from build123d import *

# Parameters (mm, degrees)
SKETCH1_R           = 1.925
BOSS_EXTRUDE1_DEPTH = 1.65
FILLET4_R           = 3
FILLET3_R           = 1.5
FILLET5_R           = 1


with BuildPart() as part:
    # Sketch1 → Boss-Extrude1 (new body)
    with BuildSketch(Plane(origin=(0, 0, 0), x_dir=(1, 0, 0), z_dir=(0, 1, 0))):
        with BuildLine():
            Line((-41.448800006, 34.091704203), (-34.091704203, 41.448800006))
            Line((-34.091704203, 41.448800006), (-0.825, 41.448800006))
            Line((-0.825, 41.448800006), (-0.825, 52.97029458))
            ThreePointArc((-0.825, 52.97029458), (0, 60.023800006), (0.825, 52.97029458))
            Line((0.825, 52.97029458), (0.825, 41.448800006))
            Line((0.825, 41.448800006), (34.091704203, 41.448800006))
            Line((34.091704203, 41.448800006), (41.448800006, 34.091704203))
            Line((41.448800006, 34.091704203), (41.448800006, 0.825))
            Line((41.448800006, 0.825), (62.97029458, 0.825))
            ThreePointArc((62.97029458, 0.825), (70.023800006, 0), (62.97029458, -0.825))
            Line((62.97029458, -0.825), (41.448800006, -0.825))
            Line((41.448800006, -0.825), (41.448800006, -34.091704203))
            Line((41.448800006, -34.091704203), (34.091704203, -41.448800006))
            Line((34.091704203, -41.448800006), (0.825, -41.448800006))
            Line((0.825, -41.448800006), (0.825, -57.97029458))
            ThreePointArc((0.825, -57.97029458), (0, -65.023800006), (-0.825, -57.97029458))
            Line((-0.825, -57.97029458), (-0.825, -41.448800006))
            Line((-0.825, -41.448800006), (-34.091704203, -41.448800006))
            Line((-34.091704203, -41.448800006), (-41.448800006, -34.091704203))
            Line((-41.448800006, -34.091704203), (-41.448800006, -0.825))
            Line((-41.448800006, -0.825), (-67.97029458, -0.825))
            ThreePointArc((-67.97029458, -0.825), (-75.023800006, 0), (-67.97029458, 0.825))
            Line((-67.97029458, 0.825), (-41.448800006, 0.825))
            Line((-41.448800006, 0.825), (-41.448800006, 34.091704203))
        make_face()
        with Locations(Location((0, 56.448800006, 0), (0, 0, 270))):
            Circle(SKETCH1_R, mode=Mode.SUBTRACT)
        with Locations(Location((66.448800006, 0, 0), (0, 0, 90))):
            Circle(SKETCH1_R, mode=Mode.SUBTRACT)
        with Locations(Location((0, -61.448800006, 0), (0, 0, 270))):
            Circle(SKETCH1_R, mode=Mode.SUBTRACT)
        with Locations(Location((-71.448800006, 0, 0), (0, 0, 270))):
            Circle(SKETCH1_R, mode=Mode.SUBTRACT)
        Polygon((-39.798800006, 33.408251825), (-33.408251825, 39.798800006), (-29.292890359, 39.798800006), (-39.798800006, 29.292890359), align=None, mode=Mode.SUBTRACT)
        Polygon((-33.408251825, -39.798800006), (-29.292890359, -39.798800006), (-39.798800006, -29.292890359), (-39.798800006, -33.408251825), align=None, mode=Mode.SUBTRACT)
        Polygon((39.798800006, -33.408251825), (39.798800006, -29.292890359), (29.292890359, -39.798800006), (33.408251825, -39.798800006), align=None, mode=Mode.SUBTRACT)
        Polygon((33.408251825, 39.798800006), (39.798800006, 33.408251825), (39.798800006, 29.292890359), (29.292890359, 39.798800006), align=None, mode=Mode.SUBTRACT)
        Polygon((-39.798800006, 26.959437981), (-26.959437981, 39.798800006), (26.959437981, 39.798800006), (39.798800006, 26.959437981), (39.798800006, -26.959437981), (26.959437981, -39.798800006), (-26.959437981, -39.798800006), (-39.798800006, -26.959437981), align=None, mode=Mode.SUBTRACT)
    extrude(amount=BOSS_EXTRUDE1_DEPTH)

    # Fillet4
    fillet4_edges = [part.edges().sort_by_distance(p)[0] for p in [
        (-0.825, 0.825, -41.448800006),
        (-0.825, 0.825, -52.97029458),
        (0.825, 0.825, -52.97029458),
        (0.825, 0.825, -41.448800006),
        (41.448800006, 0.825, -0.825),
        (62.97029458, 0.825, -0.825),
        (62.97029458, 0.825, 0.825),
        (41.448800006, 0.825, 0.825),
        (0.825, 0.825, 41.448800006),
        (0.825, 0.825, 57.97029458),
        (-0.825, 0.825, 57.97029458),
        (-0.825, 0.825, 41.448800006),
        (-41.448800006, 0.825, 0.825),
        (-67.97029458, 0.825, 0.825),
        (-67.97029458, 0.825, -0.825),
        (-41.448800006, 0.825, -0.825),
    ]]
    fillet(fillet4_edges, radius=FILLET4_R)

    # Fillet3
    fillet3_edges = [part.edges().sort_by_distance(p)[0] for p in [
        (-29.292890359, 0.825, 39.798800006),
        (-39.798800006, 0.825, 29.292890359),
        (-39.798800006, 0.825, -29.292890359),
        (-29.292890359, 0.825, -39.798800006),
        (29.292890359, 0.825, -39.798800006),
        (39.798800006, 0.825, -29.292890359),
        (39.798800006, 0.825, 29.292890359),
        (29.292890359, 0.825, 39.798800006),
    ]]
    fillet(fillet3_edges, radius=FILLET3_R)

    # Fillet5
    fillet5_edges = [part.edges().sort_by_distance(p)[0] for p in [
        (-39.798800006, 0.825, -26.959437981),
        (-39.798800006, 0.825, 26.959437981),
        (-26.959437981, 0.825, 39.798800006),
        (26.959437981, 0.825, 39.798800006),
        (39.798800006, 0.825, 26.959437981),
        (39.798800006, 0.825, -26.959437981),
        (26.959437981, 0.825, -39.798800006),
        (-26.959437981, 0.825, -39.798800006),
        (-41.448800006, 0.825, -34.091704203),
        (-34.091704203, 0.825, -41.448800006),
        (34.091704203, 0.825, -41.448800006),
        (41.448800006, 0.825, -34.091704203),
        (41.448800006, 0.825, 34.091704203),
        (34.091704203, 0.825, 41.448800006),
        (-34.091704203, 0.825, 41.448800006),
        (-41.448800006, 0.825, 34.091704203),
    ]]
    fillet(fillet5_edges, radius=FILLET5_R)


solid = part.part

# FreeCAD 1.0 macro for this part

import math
import FreeCAD as App
import Part
import Sketcher

V = App.Vector


def edges_at(feature, points):
    """Names of the edges that pass closest to the given points."""
    edges = feature.Shape.Edges
    near = lambda p: min(range(len(edges)), key=lambda i: edges[i].distToShape(Part.Vertex(*p))[0])
    return sorted({f"Edge{near(p) + 1}" for p in points})

doc = App.newDocument("Part")
body = doc.addObject("PartDesign::Body", "Body")

# Sketch on XZ plane
sketch1 = body.newObject("Sketcher::SketchObject", "Sketch")
sketch1.AttachmentSupport = (doc.getObject("XZ_Plane"), [""])
sketch1.MapMode = "FlatFace"
sketch1.addGeometry([
    Part.LineSegment(V(-34.1, -41.4, 0), V(-41.4, -34.1, 0)),  # 0
    Part.LineSegment(V(-41.4, -34.1, 0), V(-41.4, -0.8, 0)),  # 1
    Part.LineSegment(V(-41.4, -0.8, 0), V(-68, -0.8, 0)),  # 2
    Part.ArcOfCircle(Part.Circle(V(-71.4, 0, 0), V(0, 0, 1), 3.6), math.radians(13), math.radians(347)),  # 3
    Part.LineSegment(V(-68, 0.8, 0), V(-41.4, 0.8, 0)),  # 4
    Part.LineSegment(V(-41.4, 0.8, 0), V(-41.4, 34.1, 0)),  # 5
    Part.LineSegment(V(-41.4, 34.1, 0), V(-34.1, 41.4, 0)),  # 6
    Part.LineSegment(V(-34.1, 41.4, 0), V(-0.8, 41.4, 0)),  # 7
    Part.LineSegment(V(-0.8, 41.4, 0), V(-0.8, 58, 0)),  # 8
    Part.ArcOfCircle(Part.Circle(V(0, 61.4, 0), V(0, 0, 1), 3.6), math.radians(-77), math.radians(257)),  # 9
    Part.LineSegment(V(0.8, 58, 0), V(0.8, 41.4, 0)),  # 10
    Part.LineSegment(V(0.8, 41.4, 0), V(34.1, 41.4, 0)),  # 11
    Part.LineSegment(V(34.1, 41.4, 0), V(41.4, 34.1, 0)),  # 12
    Part.LineSegment(V(41.4, 34.1, 0), V(41.4, 0.8, 0)),  # 13
    Part.LineSegment(V(41.4, 0.8, 0), V(63, 0.8, 0)),  # 14
    Part.ArcOfCircle(Part.Circle(V(66.4, 0, 0), V(0, 0, 1), 3.6), math.radians(-167), math.radians(167)),  # 15
    Part.LineSegment(V(63, -0.8, 0), V(41.4, -0.8, 0)),  # 16
    Part.LineSegment(V(41.4, -0.8, 0), V(41.4, -34.1, 0)),  # 17
    Part.LineSegment(V(41.4, -34.1, 0), V(34.1, -41.4, 0)),  # 18
    Part.LineSegment(V(34.1, -41.4, 0), V(0.8, -41.4, 0)),  # 19
    Part.LineSegment(V(0.8, -41.4, 0), V(0.8, -53, 0)),  # 20
    Part.ArcOfCircle(Part.Circle(V(0, -56.4, 0), V(0, 0, 1), 3.6), math.radians(103), math.radians(437)),  # 21
    Part.LineSegment(V(-0.8, -53, 0), V(-0.8, -41.4, 0)),  # 22
    Part.LineSegment(V(-0.8, -41.4, 0), V(-34.1, -41.4, 0)),  # 23
    Part.LineSegment(V(39.8, 33.4, 0), V(33.4, 39.8, 0)),  # 24
    Part.LineSegment(V(33.4, 39.8, 0), V(29.3, 39.8, 0)),  # 25
    Part.LineSegment(V(29.3, 39.8, 0), V(39.8, 29.3, 0)),  # 26
    Part.LineSegment(V(39.8, 29.3, 0), V(39.8, 33.4, 0)),  # 27
    Part.Circle(V(0, 61.4, 0), V(0, 0, 1), 1.9),  # 28
    Part.LineSegment(V(-33.4, 39.8, 0), V(-39.8, 33.4, 0)),  # 29
    Part.LineSegment(V(-39.8, 33.4, 0), V(-39.8, 29.3, 0)),  # 30
    Part.LineSegment(V(-39.8, 29.3, 0), V(-29.3, 39.8, 0)),  # 31
    Part.LineSegment(V(-29.3, 39.8, 0), V(-33.4, 39.8, 0)),  # 32
    Part.Circle(V(66.4, 0, 0), V(0, 0, 1), 1.9),  # 33
    Part.LineSegment(V(-39.8, -27, 0), V(-27, -39.8, 0)),  # 34
    Part.LineSegment(V(-27, -39.8, 0), V(27, -39.8, 0)),  # 35
    Part.LineSegment(V(27, -39.8, 0), V(39.8, -27, 0)),  # 36
    Part.LineSegment(V(39.8, -27, 0), V(39.8, 27, 0)),  # 37
    Part.LineSegment(V(39.8, 27, 0), V(27, 39.8, 0)),  # 38
    Part.LineSegment(V(27, 39.8, 0), V(-27, 39.8, 0)),  # 39
    Part.LineSegment(V(-27, 39.8, 0), V(-39.8, 27, 0)),  # 40
    Part.LineSegment(V(-39.8, 27, 0), V(-39.8, -27, 0)),  # 41
    Part.LineSegment(V(33.4, -39.8, 0), V(39.8, -33.4, 0)),  # 42
    Part.LineSegment(V(39.8, -33.4, 0), V(39.8, -29.3, 0)),  # 43
    Part.LineSegment(V(39.8, -29.3, 0), V(29.3, -39.8, 0)),  # 44
    Part.LineSegment(V(29.3, -39.8, 0), V(33.4, -39.8, 0)),  # 45
    Part.Circle(V(0, -56.4, 0), V(0, 0, 1), 1.9),  # 46
    Part.Circle(V(-71.4, 0, 0), V(0, 0, 1), 1.9),  # 47
    Part.LineSegment(V(-39.8, -33.4, 0), V(-33.4, -39.8, 0)),  # 48
    Part.LineSegment(V(-33.4, -39.8, 0), V(-29.3, -39.8, 0)),  # 49
    Part.LineSegment(V(-29.3, -39.8, 0), V(-39.8, -29.3, 0)),  # 50
    Part.LineSegment(V(-39.8, -29.3, 0), V(-39.8, -33.4, 0)),  # 51
], False)
sketch1.addConstraint([
    Sketcher.Constraint("Coincident", 0, 2, 1, 1),
    Sketcher.Constraint("Coincident", 1, 2, 2, 1),
    Sketcher.Constraint("Coincident", 2, 2, 3, 2),
    Sketcher.Constraint("Coincident", 3, 1, 4, 1),
    Sketcher.Constraint("Coincident", 4, 2, 5, 1),
    Sketcher.Constraint("Coincident", 5, 2, 6, 1),
    Sketcher.Constraint("Coincident", 6, 2, 7, 1),
    Sketcher.Constraint("Coincident", 7, 2, 8, 1),
    Sketcher.Constraint("Coincident", 8, 2, 9, 2),
    Sketcher.Constraint("Coincident", 9, 1, 10, 1),
    Sketcher.Constraint("Coincident", 10, 2, 11, 1),
    Sketcher.Constraint("Coincident", 11, 2, 12, 1),
    Sketcher.Constraint("Coincident", 12, 2, 13, 1),
    Sketcher.Constraint("Coincident", 13, 2, 14, 1),
    Sketcher.Constraint("Coincident", 14, 2, 15, 2),
    Sketcher.Constraint("Coincident", 15, 1, 16, 1),
    Sketcher.Constraint("Coincident", 16, 2, 17, 1),
    Sketcher.Constraint("Coincident", 17, 2, 18, 1),
    Sketcher.Constraint("Coincident", 18, 2, 19, 1),
    Sketcher.Constraint("Coincident", 19, 2, 20, 1),
    Sketcher.Constraint("Coincident", 20, 2, 21, 2),
    Sketcher.Constraint("Coincident", 21, 1, 22, 1),
    Sketcher.Constraint("Coincident", 22, 2, 23, 1),
    Sketcher.Constraint("Coincident", 23, 2, 0, 1),
    Sketcher.Constraint("Coincident", 24, 2, 25, 1),
    Sketcher.Constraint("Coincident", 25, 2, 26, 1),
    Sketcher.Constraint("Coincident", 26, 2, 27, 1),
    Sketcher.Constraint("Coincident", 27, 2, 24, 1),
    Sketcher.Constraint("Coincident", 29, 2, 30, 1),
    Sketcher.Constraint("Coincident", 30, 2, 31, 1),
    Sketcher.Constraint("Coincident", 31, 2, 32, 1),
    Sketcher.Constraint("Coincident", 32, 2, 29, 1),
    Sketcher.Constraint("Coincident", 34, 2, 35, 1),
    Sketcher.Constraint("Coincident", 35, 2, 36, 1),
    Sketcher.Constraint("Coincident", 36, 2, 37, 1),
    Sketcher.Constraint("Coincident", 37, 2, 38, 1),
    Sketcher.Constraint("Coincident", 38, 2, 39, 1),
    Sketcher.Constraint("Coincident", 39, 2, 40, 1),
    Sketcher.Constraint("Coincident", 40, 2, 41, 1),
    Sketcher.Constraint("Coincident", 41, 2, 34, 1),
    Sketcher.Constraint("Coincident", 42, 2, 43, 1),
    Sketcher.Constraint("Coincident", 43, 2, 44, 1),
    Sketcher.Constraint("Coincident", 44, 2, 45, 1),
    Sketcher.Constraint("Coincident", 45, 2, 42, 1),
    Sketcher.Constraint("Coincident", 48, 2, 49, 1),
    Sketcher.Constraint("Coincident", 49, 2, 50, 1),
    Sketcher.Constraint("Coincident", 50, 2, 51, 1),
    Sketcher.Constraint("Coincident", 51, 2, 48, 1),
    Sketcher.Constraint("Vertical", 1),
    Sketcher.Constraint("Horizontal", 2),
    Sketcher.Constraint("Horizontal", 4),
    Sketcher.Constraint("Vertical", 5),
    Sketcher.Constraint("Horizontal", 7),
    Sketcher.Constraint("Vertical", 8),
    Sketcher.Constraint("Vertical", 10),
    Sketcher.Constraint("Horizontal", 11),
    Sketcher.Constraint("Vertical", 13),
    Sketcher.Constraint("Horizontal", 14),
    Sketcher.Constraint("Horizontal", 16),
    Sketcher.Constraint("Vertical", 17),
    Sketcher.Constraint("Horizontal", 19),
    Sketcher.Constraint("Vertical", 20),
    Sketcher.Constraint("Vertical", 22),
    Sketcher.Constraint("Horizontal", 23),
    Sketcher.Constraint("Horizontal", 25),
    Sketcher.Constraint("Vertical", 27),
    Sketcher.Constraint("Vertical", 30),
    Sketcher.Constraint("Horizontal", 32),
    Sketcher.Constraint("Horizontal", 35),
    Sketcher.Constraint("Vertical", 37),
    Sketcher.Constraint("Horizontal", 39),
    Sketcher.Constraint("Vertical", 41),
    Sketcher.Constraint("Vertical", 43),
    Sketcher.Constraint("Horizontal", 45),
    Sketcher.Constraint("Horizontal", 49),
    Sketcher.Constraint("Vertical", 51),
    Sketcher.Constraint("Coincident", 28, 3, 9, 3),
    Sketcher.Constraint("Coincident", 33, 3, 15, 3),
    Sketcher.Constraint("Coincident", 46, 3, 21, 3),
    Sketcher.Constraint("Coincident", 47, 3, 3, 3),
    Sketcher.Constraint("Equal", 3, 9),
    Sketcher.Constraint("Equal", 9, 15),
    Sketcher.Constraint("Equal", 15, 21),
    Sketcher.Constraint("Equal", 28, 33),
    Sketcher.Constraint("Equal", 33, 46),
    Sketcher.Constraint("Equal", 46, 47),
    Sketcher.Constraint("Symmetric", 0, 2, 12, 2, -1, 1),
    Sketcher.Constraint("Symmetric", 4, 2, 16, 2, -1, 1),
    Sketcher.Constraint("Symmetric", 6, 2, 18, 2, -1, 1),
    Sketcher.Constraint("Symmetric", 10, 2, 22, 2, -1, 1),
    Sketcher.Constraint("Symmetric", 34, 2, 38, 2, -1, 1),
    Sketcher.Constraint("Symmetric", 36, 2, 40, 2, -1, 1),
    Sketcher.Constraint("Symmetric", 29, 2, 42, 2, -1, 1),
    Sketcher.Constraint("Symmetric", 31, 2, 44, 2, -1, 1),
    Sketcher.Constraint("Symmetric", 24, 2, 48, 2, -1, 1),
    Sketcher.Constraint("Symmetric", 26, 2, 50, 2, -1, 1),
    Sketcher.Constraint("Symmetric", 8, 2, 9, 1, -2),
    Sketcher.Constraint("Symmetric", 6, 2, 11, 2, -2),
    Sketcher.Constraint("Symmetric", 5, 2, 12, 2, -2),
    Sketcher.Constraint("Symmetric", 20, 2, 21, 1, -2),
    Sketcher.Constraint("Symmetric", 27, 2, 29, 2, -2),
    Sketcher.Constraint("Symmetric", 25, 2, 31, 2, -2),
    Sketcher.Constraint("Symmetric", 2, 2, 3, 1, -1),
    Sketcher.Constraint("Symmetric", 14, 2, 15, 1, -1),
    Sketcher.Constraint("Perpendicular", 0, 6),
    Sketcher.Constraint("Perpendicular", 6, 12),
    Sketcher.Constraint("Perpendicular", 12, 18),
    Sketcher.Constraint("Perpendicular", 18, 24),
    Sketcher.Constraint("Parallel", 24, 26),
    Sketcher.Constraint("Perpendicular", 26, 29),
    Sketcher.Constraint("Parallel", 29, 31),
    Sketcher.Constraint("Perpendicular", 31, 34),
    Sketcher.Constraint("Perpendicular", 34, 36),
    Sketcher.Constraint("Perpendicular", 36, 38),
    Sketcher.Constraint("Perpendicular", 38, 40),
    Sketcher.Constraint("Parallel", 40, 42),
    Sketcher.Constraint("Parallel", 42, 44),
    Sketcher.Constraint("Perpendicular", 44, 48),
    Sketcher.Constraint("Parallel", 48, 50),
    Sketcher.Constraint("Horizontal", 32, 2, 38, 2),
    Sketcher.Constraint("Horizontal", 37, 2, 40, 2),
    Sketcher.Constraint("Vertical", 27, 2, 36, 2),
    Sketcher.Constraint("Equal", 23, 1),
    Sketcher.Constraint("Equal", 39, 37),
    Sketcher.Constraint("Diameter", 28, 3.85),
    Sketcher.Constraint("Radius", 3, 3.575),
    Sketcher.Constraint("DistanceX", 3, 3, 0, 2, 30.0),
    Sketcher.Constraint("DistanceY", 6, 2, 9, 3, 20.0),
    Sketcher.Constraint("DistanceX", 12, 2, 15, 3, 25.0),
    Sketcher.Constraint("DistanceY", 21, 3, 18, 2, 15.0),
    Sketcher.Constraint("DistanceY", 2, 2, 3, 1, 1.65),
    Sketcher.Constraint("DistanceX", 8, 2, 9, 1, 1.65),
    Sketcher.Constraint("DistanceY", 24, 2, 11, 2, 1.65),
    Sketcher.Constraint("Distance", 24, 9.0376),
    Sketcher.Constraint("Distance", 26, 14.8576),
    Sketcher.Constraint("Distance", 34, 18.1576),
    Sketcher.Constraint("DistanceX", 3, 3, -1, 1, 71.4488),
    Sketcher.Constraint("DistanceX", 7, 1, 7, 2, 33.266704),
])
pad1 = body.newObject("PartDesign::Pad", "Pad")
pad1.Profile = sketch1
pad1.Length = 1.65
pad1.Reversed = True
doc.recompute()

fillet = body.newObject("PartDesign::Fillet", "Fillet")
fillet.Base = (pad1, edges_at(pad1, [
    (-0.825, 0.825, -41.449),
    (-0.825, 0.825, -52.97),
    (0.825, 0.825, -52.97),
    (0.825, 0.825, -41.449),
    (41.449, 0.825, -0.825),
    (62.97, 0.825, -0.825),
    (62.97, 0.825, 0.825),
    (41.449, 0.825, 0.825),
    (0.825, 0.825, 41.449),
    (0.825, 0.825, 57.97),
    (-0.825, 0.825, 57.97),
    (-0.825, 0.825, 41.449),
    (-41.449, 0.825, 0.825),
    (-67.97, 0.825, 0.825),
    (-67.97, 0.825, -0.825),
    (-41.449, 0.825, -0.825),
]))
fillet.Radius = 3
doc.recompute()

fillet2 = body.newObject("PartDesign::Fillet", "Fillet001")
fillet2.Base = (fillet, edges_at(fillet, [
    (-29.293, 0.825, 39.799),
    (-39.799, 0.825, 29.293),
    (-39.799, 0.825, -29.293),
    (-29.293, 0.825, -39.799),
    (29.293, 0.825, -39.799),
    (39.799, 0.825, -29.293),
    (39.799, 0.825, 29.293),
    (29.293, 0.825, 39.799),
]))
fillet2.Radius = 1.5
doc.recompute()

fillet3 = body.newObject("PartDesign::Fillet", "Fillet002")
fillet3.Base = (fillet2, edges_at(fillet2, [
    (-39.799, 0.825, -26.959),
    (-39.799, 0.825, 26.959),
    (-26.959, 0.825, 39.799),
    (26.959, 0.825, 39.799),
    (39.799, 0.825, 26.959),
    (39.799, 0.825, -26.959),
    (26.959, 0.825, -39.799),
    (-26.959, 0.825, -39.799),
    (-41.449, 0.825, -34.092),
    (-34.092, 0.825, -41.449),
    (34.092, 0.825, -41.449),
    (41.449, 0.825, -34.092),
    (41.449, 0.825, 34.092),
    (34.092, 0.825, 41.449),
    (-34.092, 0.825, 41.449),
    (-41.449, 0.825, 34.092),
]))
fillet3.Radius = 1

doc.recompute()
